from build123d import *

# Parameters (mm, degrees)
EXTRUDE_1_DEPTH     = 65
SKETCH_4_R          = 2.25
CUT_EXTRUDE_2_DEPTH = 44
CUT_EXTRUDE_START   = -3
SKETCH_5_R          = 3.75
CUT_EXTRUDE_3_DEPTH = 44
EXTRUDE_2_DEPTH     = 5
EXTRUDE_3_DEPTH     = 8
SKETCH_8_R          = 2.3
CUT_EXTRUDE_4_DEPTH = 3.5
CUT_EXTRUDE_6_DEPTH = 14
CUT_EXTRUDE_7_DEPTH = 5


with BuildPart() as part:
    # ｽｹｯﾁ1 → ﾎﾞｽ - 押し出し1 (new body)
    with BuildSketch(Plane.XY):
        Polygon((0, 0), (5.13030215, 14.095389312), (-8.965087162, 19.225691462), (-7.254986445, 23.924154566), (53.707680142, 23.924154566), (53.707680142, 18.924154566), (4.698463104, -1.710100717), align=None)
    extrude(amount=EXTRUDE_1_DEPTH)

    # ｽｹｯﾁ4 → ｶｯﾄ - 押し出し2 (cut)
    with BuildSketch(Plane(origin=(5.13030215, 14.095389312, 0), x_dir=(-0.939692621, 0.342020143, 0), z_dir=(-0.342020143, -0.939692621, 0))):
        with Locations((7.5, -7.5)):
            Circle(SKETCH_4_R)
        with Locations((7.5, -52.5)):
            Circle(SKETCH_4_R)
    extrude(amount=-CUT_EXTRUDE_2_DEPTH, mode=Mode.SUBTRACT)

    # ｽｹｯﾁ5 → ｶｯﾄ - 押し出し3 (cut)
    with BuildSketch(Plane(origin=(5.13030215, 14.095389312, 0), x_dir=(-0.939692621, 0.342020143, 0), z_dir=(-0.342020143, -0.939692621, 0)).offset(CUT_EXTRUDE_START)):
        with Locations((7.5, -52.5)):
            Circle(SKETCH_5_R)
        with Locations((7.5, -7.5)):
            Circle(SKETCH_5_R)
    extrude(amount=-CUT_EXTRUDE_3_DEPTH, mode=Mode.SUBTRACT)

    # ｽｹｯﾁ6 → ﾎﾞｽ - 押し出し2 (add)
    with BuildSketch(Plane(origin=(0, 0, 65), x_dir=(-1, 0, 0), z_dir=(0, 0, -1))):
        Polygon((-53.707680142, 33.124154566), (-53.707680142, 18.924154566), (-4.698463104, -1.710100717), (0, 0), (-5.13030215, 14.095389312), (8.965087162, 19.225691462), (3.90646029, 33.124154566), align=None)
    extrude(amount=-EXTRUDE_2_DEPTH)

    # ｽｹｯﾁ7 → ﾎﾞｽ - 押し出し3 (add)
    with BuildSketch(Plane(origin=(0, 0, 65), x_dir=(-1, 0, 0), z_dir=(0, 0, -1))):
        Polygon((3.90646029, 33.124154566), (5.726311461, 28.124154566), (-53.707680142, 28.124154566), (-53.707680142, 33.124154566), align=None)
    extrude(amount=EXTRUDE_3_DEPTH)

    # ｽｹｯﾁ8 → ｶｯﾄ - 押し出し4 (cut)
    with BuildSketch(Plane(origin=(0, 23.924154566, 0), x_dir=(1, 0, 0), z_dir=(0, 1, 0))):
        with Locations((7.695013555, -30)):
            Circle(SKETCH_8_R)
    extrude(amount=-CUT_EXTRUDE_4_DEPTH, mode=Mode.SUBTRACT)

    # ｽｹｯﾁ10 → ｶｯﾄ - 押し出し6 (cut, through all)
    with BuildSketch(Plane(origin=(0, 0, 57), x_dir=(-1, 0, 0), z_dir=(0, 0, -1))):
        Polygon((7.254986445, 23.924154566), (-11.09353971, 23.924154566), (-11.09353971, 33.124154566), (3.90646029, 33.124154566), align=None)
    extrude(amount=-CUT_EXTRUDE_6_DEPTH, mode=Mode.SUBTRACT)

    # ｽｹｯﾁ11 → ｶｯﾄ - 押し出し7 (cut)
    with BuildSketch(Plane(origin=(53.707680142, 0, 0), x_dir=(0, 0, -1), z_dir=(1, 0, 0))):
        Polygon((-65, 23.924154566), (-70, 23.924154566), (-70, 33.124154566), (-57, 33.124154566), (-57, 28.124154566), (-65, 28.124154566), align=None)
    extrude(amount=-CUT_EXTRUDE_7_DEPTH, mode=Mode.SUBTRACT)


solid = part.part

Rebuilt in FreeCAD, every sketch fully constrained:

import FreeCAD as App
import Part
import Sketcher
Q = App.Units.Quantity

doc = App.newDocument("Part")
body = doc.addObject("PartDesign::Body", "Body")

# Sketch on XY plane
sketch1 = body.newObject("Sketcher::SketchObject", "Sketch")
sketch1.AttachmentSupport = (doc.getObject("XY_Plane"), [""])
sketch1.MapMode = "FlatFace"
sketch1.addGeometry([
    Part.LineSegment(App.Vector(5, 14, 0), App.Vector(0, 0, 0)),  # 0
    Part.LineSegment(App.Vector(0, 0, 0), App.Vector(5, -2, 0)),  # 1
    Part.LineSegment(App.Vector(5, -2, 0), App.Vector(54, 19, 0)),  # 2
    Part.LineSegment(App.Vector(54, 19, 0), App.Vector(54, 24, 0)),  # 3
    Part.LineSegment(App.Vector(54, 24, 0), App.Vector(-7, 24, 0)),  # 4
    Part.LineSegment(App.Vector(-7, 24, 0), App.Vector(-9, 19, 0)),  # 5
    Part.LineSegment(App.Vector(-9, 19, 0), App.Vector(5, 14, 0)),  # 6
], False)
sketch1.addConstraint([
    Sketcher.Constraint("Coincident", 0, 2, 1, 1),
    Sketcher.Constraint("Coincident", 1, 2, 2, 1),
    Sketcher.Constraint("Coincident", 2, 2, 3, 1),
    Sketcher.Constraint("Coincident", 3, 2, 4, 1),
    Sketcher.Constraint("Coincident", 4, 2, 5, 1),
    Sketcher.Constraint("Coincident", 5, 2, 6, 1),
    Sketcher.Constraint("Coincident", 6, 2, 0, 1),
    Sketcher.Constraint("Vertical", 3),
    Sketcher.Constraint("Horizontal", 4),
    Sketcher.Constraint("Coincident", 0, 2, -1, 1),
    Sketcher.Constraint("Perpendicular", 0, 1),
    Sketcher.Constraint("Perpendicular", 1, 5),
    Sketcher.Constraint("Perpendicular", 5, 6),
    Sketcher.Constraint("Equal", 1, 5),
    Sketcher.Constraint("Equal", 0, 6),
    Sketcher.Constraint("DistanceY", 3, 1, 3, 2, 5.0),
    Sketcher.Constraint("Angle", 0, Q("-110 deg")),
    Sketcher.Constraint("Distance", 0, 15.0),
    Sketcher.Constraint("Distance", 1, 5.0),
    Sketcher.Constraint("DistanceX", 4, 2, 4, 1, 60.962667),
])
pad1 = body.newObject("PartDesign::Pad", "Pad")
pad1.Profile = sketch1
pad1.Length = 65

# Sketch on an angled plane
sketch2 = body.newObject("Sketcher::SketchObject", "Sketch001")
sketch2.Placement = App.Placement(App.Vector(5.130302, 14.095389, 0), App.Rotation(App.Vector(-0.939692621, 0.342020143, 0), App.Vector(0, 0, -1), App.Vector(-0.342020143, -0.939692621, 0), "ZXY"))
sketch2.addGeometry([
    Part.Circle(App.Vector(7.5, -7.5, 0), App.Vector(0, 0, 1), 2.2),
    Part.Circle(App.Vector(7.5, -52.5, 0), App.Vector(0, 0, 1), 2.2),
], False)
sketch2.addConstraint([
    Sketcher.Constraint("Equal", 0, 1),
    Sketcher.Constraint("Vertical", 0, 3, 1, 3),
    Sketcher.Constraint("Diameter", 0, 4.5),
    Sketcher.Constraint("DistanceY", 1, 3, 0, 3, 45.0),
    Sketcher.Constraint("DistanceX", -1, 1, 0, 3, 7.5),
    Sketcher.Constraint("DistanceY", 0, 3, -1, 1, 7.5),
])
pocket1 = body.newObject("PartDesign::Pocket", "Pocket")
pocket1.Profile = sketch2
pocket1.Length = 44

# Sketch on an angled plane
sketch3 = body.newObject("Sketcher::SketchObject", "Sketch002")
sketch3.Placement = App.Placement(App.Vector(6.156363, 16.914467, 0), App.Rotation(App.Vector(-0.939692621, 0.342020143, 0), App.Vector(0, 0, -1), App.Vector(-0.342020143, -0.939692621, 0), "ZXY"))
sketch3.addGeometry([
    Part.Circle(App.Vector(7.5, -52.5, 0), App.Vector(0, 0, 1), 3.8),
    Part.Circle(App.Vector(7.5, -7.5, 0), App.Vector(0, 0, 1), 3.8),
], False)
sketch3.addConstraint([
    Sketcher.Constraint("Equal", 0, 1),
    Sketcher.Constraint("Vertical", 0, 3, 1, 3),
    Sketcher.Constraint("Diameter", 0, 7.5),
    Sketcher.Constraint("DistanceY", 0, 3, 1, 3, 45.0),
    Sketcher.Constraint("DistanceX", -1, 1, 0, 3, 7.5),
    Sketcher.Constraint("DistanceY", 0, 3, -1, 1, 52.5),
])
pocket2 = body.newObject("PartDesign::Pocket", "Pocket001")
pocket2.Profile = sketch3
pocket2.Length = 44

# Sketch on XY plane
sketch4 = body.newObject("Sketcher::SketchObject", "Sketch003")
sketch4.AttachmentSupport = (doc.getObject("XY_Plane"), [""])
sketch4.MapMode = "FlatFace"
sketch4.AttachmentOffset = App.Placement(App.Vector(0, 0, 65), App.Rotation())
sketch4.addGeometry([
    Part.LineSegment(App.Vector(54, 33, 0), App.Vector(54, 19, 0)),  # 0
    Part.LineSegment(App.Vector(54, 19, 0), App.Vector(5, -2, 0)),  # 1
    Part.LineSegment(App.Vector(5, -2, 0), App.Vector(0, 0, 0)),  # 2
    Part.LineSegment(App.Vector(0, 0, 0), App.Vector(5, 14, 0)),  # 3
    Part.LineSegment(App.Vector(5, 14, 0), App.Vector(-9, 19, 0)),  # 4
    Part.LineSegment(App.Vector(-9, 19, 0), App.Vector(-4, 33, 0)),  # 5
    Part.LineSegment(App.Vector(-4, 33, 0), App.Vector(54, 33, 0)),  # 6
], False)
sketch4.addConstraint([
    Sketcher.Constraint("Coincident", 0, 2, 1, 1),
    Sketcher.Constraint("Coincident", 1, 2, 2, 1),
    Sketcher.Constraint("Coincident", 2, 2, 3, 1),
    Sketcher.Constraint("Coincident", 3, 2, 4, 1),
    Sketcher.Constraint("Coincident", 4, 2, 5, 1),
    Sketcher.Constraint("Coincident", 5, 2, 6, 1),
    Sketcher.Constraint("Coincident", 6, 2, 0, 1),
    Sketcher.Constraint("Vertical", 0),
    Sketcher.Constraint("Horizontal", 6),
    Sketcher.Constraint("Coincident", 2, 2, -1, 1),
    Sketcher.Constraint("Perpendicular", 2, 3),
    Sketcher.Constraint("Perpendicular", 3, 4),
    Sketcher.Constraint("Perpendicular", 4, 5),
    Sketcher.Constraint("Equal", 3, 4),
    Sketcher.Constraint("Angle", 2, Q("160 deg")),
    Sketcher.Constraint("Distance", 2, 5.0),
    Sketcher.Constraint("Distance", 3, 15.0),
    Sketcher.Constraint("DistanceY", 0, 2, 0, 1, 14.2),
    Sketcher.Constraint("DistanceX", 6, 1, 6, 2, 57.61414),
    Sketcher.Constraint("DistanceX", -1, 1, 0, 2, 53.70768),
])
pad2 = body.newObject("PartDesign::Pad", "Pad001")
pad2.Profile = sketch4
pad2.Length = 5

# Sketch on XY plane
sketch5 = body.newObject("Sketcher::SketchObject", "Sketch004")
sketch5.AttachmentSupport = (doc.getObject("XY_Plane"), [""])
sketch5.MapMode = "FlatFace"
sketch5.AttachmentOffset = App.Placement(App.Vector(0, 0, 65), App.Rotation())
sketch5.addGeometry([
    Part.LineSegment(App.Vector(-6, 28, 0), App.Vector(-4, 33, 0)),
    Part.LineSegment(App.Vector(-4, 33, 0), App.Vector(54, 33, 0)),
    Part.LineSegment(App.Vector(54, 33, 0), App.Vector(54, 28, 0)),
    Part.LineSegment(App.Vector(54, 28, 0), App.Vector(-6, 28, 0)),
], False)
sketch5.addConstraint([
    Sketcher.Constraint("Coincident", 0, 2, 1, 1),
    Sketcher.Constraint("Coincident", 1, 2, 2, 1),
    Sketcher.Constraint("Coincident", 2, 2, 3, 1),
    Sketcher.Constraint("Coincident", 3, 2, 0, 1),
    Sketcher.Constraint("Horizontal", 1),
    Sketcher.Constraint("Vertical", 2),
    Sketcher.Constraint("Horizontal", 3),
    Sketcher.Constraint("DistanceY", 2, 2, 2, 1, 5.0),
    Sketcher.Constraint("Angle", 0, Q("70 deg")),
    Sketcher.Constraint("DistanceX", 1, 1, 1, 2, 57.61414),
    Sketcher.Constraint("DistanceX", 0, 2, -1, 1, 3.90646),
    Sketcher.Constraint("DistanceY", -1, 1, 0, 2, 33.124155),
])
pad3 = body.newObject("PartDesign::Pad", "Pad002")
pad3.Profile = sketch5
pad3.Length = 8
pad3.Reversed = True

# Sketch on XZ plane
sketch6 = body.newObject("Sketcher::SketchObject", "Sketch005")
sketch6.AttachmentSupport = (doc.getObject("XZ_Plane"), [""])
sketch6.MapMode = "FlatFace"
sketch6.AttachmentOffset = App.Placement(App.Vector(0, 0, -23.924155), App.Rotation())
sketch6.addGeometry(Part.Circle(App.Vector(7.7, 30, 0), App.Vector(0, 0, 1), 2.3), False)
sketch6.addConstraint([
    Sketcher.Constraint("Diameter", 0, 4.6),
    Sketcher.Constraint("DistanceY", -1, 1, 0, 3, 30.0),
    Sketcher.Constraint("DistanceX", -1, 1, 0, 3, 7.695014),
])
pocket3 = body.newObject("PartDesign::Pocket", "Pocket002")
pocket3.Profile = sketch6
pocket3.Length = 3.5
pocket3.Reversed = True

# Sketch on XY plane
sketch7 = body.newObject("Sketcher::SketchObject", "Sketch006")
sketch7.AttachmentSupport = (doc.getObject("XY_Plane"), [""])
sketch7.MapMode = "FlatFace"
sketch7.AttachmentOffset = App.Placement(App.Vector(0, 0, 57), App.Rotation())
sketch7.addGeometry([
    Part.LineSegment(App.Vector(11, 24, 0), App.Vector(-7, 24, 0)),
    Part.LineSegment(App.Vector(-7, 24, 0), App.Vector(-4, 33, 0)),
    Part.LineSegment(App.Vector(-4, 33, 0), App.Vector(11, 33, 0)),
    Part.LineSegment(App.Vector(11, 33, 0), App.Vector(11, 24, 0)),
], False)
sketch7.addConstraint([
    Sketcher.Constraint("Coincident", 0, 2, 1, 1),
    Sketcher.Constraint("Coincident", 1, 2, 2, 1),
    Sketcher.Constraint("Coincident", 2, 2, 3, 1),
    Sketcher.Constraint("Coincident", 3, 2, 0, 1),
    Sketcher.Constraint("Horizontal", 0),
    Sketcher.Constraint("Horizontal", 2),
    Sketcher.Constraint("Vertical", 3),
    Sketcher.Constraint("DistanceX", 2, 1, 2, 2, 15.0),
    Sketcher.Constraint("Angle", 1, Q("70 deg")),
    Sketcher.Constraint("DistanceY", 3, 2, 3, 1, 9.2),
    Sketcher.Constraint("DistanceX", 1, 2, -1, 1, 3.90646),
    Sketcher.Constraint("DistanceY", -1, 1, 0, 2, 23.924155),
])
pocket4 = body.newObject("PartDesign::Pocket", "Pocket003")
pocket4.Profile = sketch7
pocket4.Type = "ThroughAll"
pocket4.Reversed = True

# Sketch on YZ plane
sketch8 = body.newObject("Sketcher::SketchObject", "Sketch007")
sketch8.AttachmentSupport = (doc.getObject("YZ_Plane"), [""])
sketch8.MapMode = "FlatFace"
sketch8.AttachmentOffset = App.Placement(App.Vector(0, 0, 53.70768), App.Rotation())
sketch8.addGeometry([
    Part.LineSegment(App.Vector(23.9, 70, 0), App.Vector(23.9, 65, 0)),  # 0
    Part.LineSegment(App.Vector(23.9, 65, 0), App.Vector(28.1, 65, 0)),  # 1
    Part.LineSegment(App.Vector(28.1, 65, 0), App.Vector(28.1, 57, 0)),  # 2
    Part.LineSegment(App.Vector(28.1, 57, 0), App.Vector(33.1, 57, 0)),  # 3
    Part.LineSegment(App.Vector(33.1, 57, 0), App.Vector(33.1, 70, 0)),  # 4
    Part.LineSegment(App.Vector(33.1, 70, 0), App.Vector(23.9, 70, 0)),  # 5
], False)
sketch8.addConstraint([
    Sketcher.Constraint("Coincident", 0, 2, 1, 1),
    Sketcher.Constraint("Coincident", 1, 2, 2, 1),
    Sketcher.Constraint("Coincident", 2, 2, 3, 1),
    Sketcher.Constraint("Coincident", 3, 2, 4, 1),
    Sketcher.Constraint("Coincident", 4, 2, 5, 1),
    Sketcher.Constraint("Coincident", 5, 2, 0, 1),
    Sketcher.Constraint("Vertical", 0),
    Sketcher.Constraint("Horizontal", 1),
    Sketcher.Constraint("Vertical", 2),
    Sketcher.Constraint("Horizontal", 3),
    Sketcher.Constraint("Vertical", 4),
    Sketcher.Constraint("Horizontal", 5),
    Sketcher.Constraint("Equal", 3, 0),
    Sketcher.Constraint("DistanceX", 3, 1, 3, 2, 5.0),
    Sketcher.Constraint("DistanceY", 2, 2, 2, 1, 8.0),
    Sketcher.Constraint("DistanceX", 1, 1, 1, 2, 4.2),
    Sketcher.Constraint("DistanceY", -1, 1, 0, 2, 65.0),
    Sketcher.Constraint("DistanceX", -1, 1, 0, 2, 23.924155),
])
pocket5 = body.newObject("PartDesign::Pocket", "Pocket004")
pocket5.Profile = sketch8
pocket5.Length = 5

doc.recompute()
